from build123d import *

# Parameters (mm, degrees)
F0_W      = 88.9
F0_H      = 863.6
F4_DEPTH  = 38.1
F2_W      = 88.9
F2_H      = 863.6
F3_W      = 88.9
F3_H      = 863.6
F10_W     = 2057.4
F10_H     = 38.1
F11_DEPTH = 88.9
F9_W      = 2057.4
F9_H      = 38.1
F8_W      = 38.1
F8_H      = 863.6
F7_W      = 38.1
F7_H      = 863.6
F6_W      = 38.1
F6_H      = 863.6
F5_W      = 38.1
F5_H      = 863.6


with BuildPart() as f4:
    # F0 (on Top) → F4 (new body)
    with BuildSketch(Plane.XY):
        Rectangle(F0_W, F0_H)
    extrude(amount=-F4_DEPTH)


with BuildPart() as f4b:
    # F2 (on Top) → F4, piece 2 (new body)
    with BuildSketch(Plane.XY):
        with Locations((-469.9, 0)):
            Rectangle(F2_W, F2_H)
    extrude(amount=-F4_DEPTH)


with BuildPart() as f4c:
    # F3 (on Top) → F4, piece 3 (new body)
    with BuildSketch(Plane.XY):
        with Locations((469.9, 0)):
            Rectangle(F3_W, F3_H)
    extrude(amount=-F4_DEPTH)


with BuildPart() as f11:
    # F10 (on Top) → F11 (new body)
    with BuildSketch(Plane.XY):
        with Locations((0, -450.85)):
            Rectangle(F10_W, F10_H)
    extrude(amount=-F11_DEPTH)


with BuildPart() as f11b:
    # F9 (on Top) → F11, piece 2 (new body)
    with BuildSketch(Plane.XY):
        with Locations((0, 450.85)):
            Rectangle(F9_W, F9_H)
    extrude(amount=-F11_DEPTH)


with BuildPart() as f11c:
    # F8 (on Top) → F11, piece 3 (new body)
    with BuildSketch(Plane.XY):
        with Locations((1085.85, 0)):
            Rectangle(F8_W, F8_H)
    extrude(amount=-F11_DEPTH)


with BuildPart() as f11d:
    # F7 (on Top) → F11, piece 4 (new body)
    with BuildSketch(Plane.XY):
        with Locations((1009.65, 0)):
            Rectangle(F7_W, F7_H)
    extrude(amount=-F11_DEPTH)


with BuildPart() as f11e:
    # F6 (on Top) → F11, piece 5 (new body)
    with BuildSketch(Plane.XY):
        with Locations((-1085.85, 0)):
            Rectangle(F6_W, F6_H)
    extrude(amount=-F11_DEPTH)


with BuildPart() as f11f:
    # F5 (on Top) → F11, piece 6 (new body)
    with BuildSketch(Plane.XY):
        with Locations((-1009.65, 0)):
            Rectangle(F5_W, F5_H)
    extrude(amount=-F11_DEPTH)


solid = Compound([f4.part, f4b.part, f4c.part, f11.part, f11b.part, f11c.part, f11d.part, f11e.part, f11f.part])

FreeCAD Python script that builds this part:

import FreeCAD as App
import Part
import Sketcher

V = App.Vector
Q = App.Units.Quantity

doc = App.newDocument("Part")
body = doc.addObject("PartDesign::Body", "Body")

# Sketch on XY plane
sketch1 = doc.addObject("Sketcher::SketchObject", "Sketch")
body.addObject(sketch1)
sketch1.AttachmentSupport = (doc.XY_Plane, [""])
sketch1.MapMode = "FlatFace"
sketch1.addGeometry(Part.LineSegment(V(-44, 432, 0), V(-44, -432, 0)), False)
sketch1.addGeometry(Part.LineSegment(V(-44, -432, 0), V(44, -432, 0)), False)
sketch1.addGeometry(Part.LineSegment(V(44, -432, 0), V(44, 432, 0)), False)
sketch1.addGeometry(Part.LineSegment(V(44, 432, 0), V(-44, 432, 0)), False)
sketch1.addConstraint(Sketcher.Constraint("Coincident", 0, 2, 1, 1))
sketch1.addConstraint(Sketcher.Constraint("Coincident", 1, 2, 2, 1))
sketch1.addConstraint(Sketcher.Constraint("Coincident", 2, 2, 3, 1))
sketch1.addConstraint(Sketcher.Constraint("Coincident", 3, 2, 0, 1))
sketch1.addConstraint(Sketcher.Constraint("Vertical", 0))
sketch1.addConstraint(Sketcher.Constraint("Horizontal", 1))
sketch1.addConstraint(Sketcher.Constraint("Vertical", 2))
sketch1.addConstraint(Sketcher.Constraint("Horizontal", 3))
sketch1.addConstraint(Sketcher.Constraint("Symmetric", 0, 2, 2, 2, -1, 1))
sketch1.addConstraint(Sketcher.Constraint("DistanceY", 0, 2, 0, 1, Q("34 in")))
sketch1.addConstraint(Sketcher.Constraint("DistanceX", 1, 1, 1, 2, Q("3.5 in")))
pad1 = doc.addObject("PartDesign::Pad", "Pad")
body.addObject(pad1)
pad1.Profile = sketch1
pad1.Length = Q("1.5 in")
pad1.Reversed = True
body2 = doc.addObject("PartDesign::Body", "Body001")

# Sketch on XY plane
sketch2 = doc.addObject("Sketcher::SketchObject", "Sketch001")
body2.addObject(sketch2)
sketch2.AttachmentSupport = (doc.getObject("XY_Plane001"), [""])
sketch2.MapMode = "FlatFace"
sketch2.addGeometry(Part.LineSegment(V(-514, 432, 0), V(-514, -432, 0)), False)
sketch2.addGeometry(Part.LineSegment(V(-514, -432, 0), V(-425, -432, 0)), False)
sketch2.addGeometry(Part.LineSegment(V(-425, -432, 0), V(-425, 432, 0)), False)
sketch2.addGeometry(Part.LineSegment(V(-425, 432, 0), V(-514, 432, 0)), False)
sketch2.addConstraint(Sketcher.Constraint("Coincident", 0, 2, 1, 1))
sketch2.addConstraint(Sketcher.Constraint("Coincident", 1, 2, 2, 1))
sketch2.addConstraint(Sketcher.Constraint("Coincident", 2, 2, 3, 1))
sketch2.addConstraint(Sketcher.Constraint("Coincident", 3, 2, 0, 1))
sketch2.addConstraint(Sketcher.Constraint("Vertical", 0))
sketch2.addConstraint(Sketcher.Constraint("Horizontal", 1))
sketch2.addConstraint(Sketcher.Constraint("Vertical", 2))
sketch2.addConstraint(Sketcher.Constraint("Horizontal", 3))
sketch2.addConstraint(Sketcher.Constraint("DistanceY", 0, 2, 0, 1, Q("34 in")))
sketch2.addConstraint(Sketcher.Constraint("DistanceX", 1, 1, 1, 2, Q("3.5 in")))
sketch2.addConstraint(Sketcher.Constraint("DistanceY", 0, 2, -1, 1, Q("17 in")))
sketch2.addConstraint(Sketcher.Constraint("DistanceX", 0, 2, -1, 1, Q("20.25 in")))
pad2 = doc.addObject("PartDesign::Pad", "Pad001")
body2.addObject(pad2)
pad2.Profile = sketch2
pad2.Length = Q("1.5 in")
pad2.Reversed = True
body3 = doc.addObject("PartDesign::Body", "Body002")

# Sketch on XY plane
sketch3 = doc.addObject("Sketcher::SketchObject", "Sketch002")
body3.addObject(sketch3)
sketch3.AttachmentSupport = (doc.getObject("XY_Plane002"), [""])
sketch3.MapMode = "FlatFace"
sketch3.addGeometry(Part.LineSegment(V(425, 432, 0), V(425, -432, 0)), False)
sketch3.addGeometry(Part.LineSegment(V(425, -432, 0), V(514, -432, 0)), False)
sketch3.addGeometry(Part.LineSegment(V(514, -432, 0), V(514, 432, 0)), False)
sketch3.addGeometry(Part.LineSegment(V(514, 432, 0), V(425, 432, 0)), False)
sketch3.addConstraint(Sketcher.Constraint("Coincident", 0, 2, 1, 1))
sketch3.addConstraint(Sketcher.Constraint("Coincident", 1, 2, 2, 1))
sketch3.addConstraint(Sketcher.Constraint("Coincident", 2, 2, 3, 1))
sketch3.addConstraint(Sketcher.Constraint("Coincident", 3, 2, 0, 1))
sketch3.addConstraint(Sketcher.Constraint("Vertical", 0))
sketch3.addConstraint(Sketcher.Constraint("Horizontal", 1))
sketch3.addConstraint(Sketcher.Constraint("Vertical", 2))
sketch3.addConstraint(Sketcher.Constraint("Horizontal", 3))
sketch3.addConstraint(Sketcher.Constraint("DistanceY", 0, 2, 0, 1, Q("34 in")))
sketch3.addConstraint(Sketcher.Constraint("DistanceX", 1, 1, 1, 2, Q("3.5 in")))
sketch3.addConstraint(Sketcher.Constraint("DistanceY", 0, 2, -1, 1, Q("17 in")))
sketch3.addConstraint(Sketcher.Constraint("DistanceX", -1, 1, 0, 2, Q("16.75 in")))
pad3 = doc.addObject("PartDesign::Pad", "Pad002")
body3.addObject(pad3)
pad3.Profile = sketch3
pad3.Length = Q("1.5 in")
pad3.Reversed = True
body4 = doc.addObject("PartDesign::Body", "Body003")

# Sketch on XY plane
sketch4 = doc.addObject("Sketcher::SketchObject", "Sketch003")
body4.addObject(sketch4)
sketch4.AttachmentSupport = (doc.getObject("XY_Plane003"), [""])
sketch4.MapMode = "FlatFace"
sketch4.addGeometry(Part.LineSegment(V(-1029, -432, 0), V(-1029, -470, 0)), False)
sketch4.addGeometry(Part.LineSegment(V(-1029, -470, 0), V(1029, -470, 0)), False)
sketch4.addGeometry(Part.LineSegment(V(1029, -470, 0), V(1029, -432, 0)), False)
sketch4.addGeometry(Part.LineSegment(V(1029, -432, 0), V(-1029, -432, 0)), False)
sketch4.addConstraint(Sketcher.Constraint("Coincident", 0, 2, 1, 1))
sketch4.addConstraint(Sketcher.Constraint("Coincident", 1, 2, 2, 1))
sketch4.addConstraint(Sketcher.Constraint("Coincident", 2, 2, 3, 1))
sketch4.addConstraint(Sketcher.Constraint("Coincident", 3, 2, 0, 1))
sketch4.addConstraint(Sketcher.Constraint("Vertical", 0))
sketch4.addConstraint(Sketcher.Constraint("Horizontal", 1))
sketch4.addConstraint(Sketcher.Constraint("Vertical", 2))
sketch4.addConstraint(Sketcher.Constraint("Horizontal", 3))
sketch4.addConstraint(Sketcher.Constraint("DistanceX", 1, 1, 1, 2, Q("81 in")))
sketch4.addConstraint(Sketcher.Constraint("DistanceY", 0, 2, 0, 1, Q("1.5 in")))
sketch4.addConstraint(Sketcher.Constraint("DistanceY", 2, 2, -1, 1, Q("17 in")))
sketch4.addConstraint(Sketcher.Constraint("DistanceX", 0, 2, -1, 1, Q("40.5 in")))
pad4 = doc.addObject("PartDesign::Pad", "Pad003")
body4.addObject(pad4)
pad4.Profile = sketch4
pad4.Length = Q("3.5 in")
pad4.Reversed = True
body5 = doc.addObject("PartDesign::Body", "Body004")

# Sketch on XY plane
sketch5 = doc.addObject("Sketcher::SketchObject", "Sketch004")
body5.addObject(sketch5)
sketch5.AttachmentSupport = (doc.getObject("XY_Plane004"), [""])
sketch5.MapMode = "FlatFace"
sketch5.addGeometry(Part.LineSegment(V(-1029, 470, 0), V(-1029, 432, 0)), False)
sketch5.addGeometry(Part.LineSegment(V(-1029, 432, 0), V(1029, 432, 0)), False)
sketch5.addGeometry(Part.LineSegment(V(1029, 432, 0), V(1029, 470, 0)), False)
sketch5.addGeometry(Part.LineSegment(V(1029, 470, 0), V(-1029, 470, 0)), False)
sketch5.addConstraint(Sketcher.Constraint("Coincident", 0, 2, 1, 1))
sketch5.addConstraint(Sketcher.Constraint("Coincident", 1, 2, 2, 1))
sketch5.addConstraint(Sketcher.Constraint("Coincident", 2, 2, 3, 1))
sketch5.addConstraint(Sketcher.Constraint("Coincident", 3, 2, 0, 1))
sketch5.addConstraint(Sketcher.Constraint("Vertical", 0))
sketch5.addConstraint(Sketcher.Constraint("Horizontal", 1))
sketch5.addConstraint(Sketcher.Constraint("Vertical", 2))
sketch5.addConstraint(Sketcher.Constraint("Horizontal", 3))
sketch5.addConstraint(Sketcher.Constraint("DistanceX", 1, 1, 1, 2, Q("81 in")))
sketch5.addConstraint(Sketcher.Constraint("DistanceY", 0, 2, 0, 1, Q("1.5 in")))
sketch5.addConstraint(Sketcher.Constraint("DistanceY", -1, 1, 0, 2, Q("17 in")))
sketch5.addConstraint(Sketcher.Constraint("DistanceX", 0, 2, -1, 1, Q("40.5 in")))
pad5 = doc.addObject("PartDesign::Pad", "Pad004")
body5.addObject(pad5)
pad5.Profile = sketch5
pad5.Length = Q("3.5 in")
pad5.Reversed = True
body6 = doc.addObject("PartDesign::Body", "Body005")

# Sketch on XY plane
sketch6 = doc.addObject("Sketcher::SketchObject", "Sketch005")
body6.addObject(sketch6)
sketch6.AttachmentSupport = (doc.getObject("XY_Plane005"), [""])
sketch6.MapMode = "FlatFace"
sketch6.addGeometry(Part.LineSegment(V(1067, 432, 0), V(1067, -432, 0)), False)
sketch6.addGeometry(Part.LineSegment(V(1067, -432, 0), V(1105, -432, 0)), False)
sketch6.addGeometry(Part.LineSegment(V(1105, -432, 0), V(1105, 432, 0)), False)
sketch6.addGeometry(Part.LineSegment(V(1105, 432, 0), V(1067, 432, 0)), False)
sketch6.addConstraint(Sketcher.Constraint("Coincident", 0, 2, 1, 1))
sketch6.addConstraint(Sketcher.Constraint("Coincident", 1, 2, 2, 1))
sketch6.addConstraint(Sketcher.Constraint("Coincident", 2, 2, 3, 1))
sketch6.addConstraint(Sketcher.Constraint("Coincident", 3, 2, 0, 1))
sketch6.addConstraint(Sketcher.Constraint("Vertical", 0))
sketch6.addConstraint(Sketcher.Constraint("Horizontal", 1))
sketch6.addConstraint(Sketcher.Constraint("Vertical", 2))
sketch6.addConstraint(Sketcher.Constraint("Horizontal", 3))
sketch6.addConstraint(Sketcher.Constraint("DistanceY", 0, 2, 0, 1, Q("34 in")))
sketch6.addConstraint(Sketcher.Constraint("DistanceX", 1, 1, 1, 2, Q("1.5 in")))
sketch6.addConstraint(Sketcher.Constraint("DistanceX", -1, 1, 0, 2, Q("42 in")))
sketch6.addConstraint(Sketcher.Constraint("DistanceY", 0, 2, -1, 1, Q("17 in")))
pad6 = doc.addObject("PartDesign::Pad", "Pad005")
body6.addObject(pad6)
pad6.Profile = sketch6
pad6.Length = Q("3.5 in")
pad6.Reversed = True
body7 = doc.addObject("PartDesign::Body", "Body006")

# Sketch on XY plane
sketch7 = doc.addObject("Sketcher::SketchObject", "Sketch006")
body7.addObject(sketch7)
sketch7.AttachmentSupport = (doc.getObject("XY_Plane006"), [""])
sketch7.MapMode = "FlatFace"
sketch7.addGeometry(Part.LineSegment(V(991, 432, 0), V(991, -432, 0)), False)
sketch7.addGeometry(Part.LineSegment(V(991, -432, 0), V(1029, -432, 0)), False)
sketch7.addGeometry(Part.LineSegment(V(1029, -432, 0), V(1029, 432, 0)), False)
sketch7.addGeometry(Part.LineSegment(V(1029, 432, 0), V(991, 432, 0)), False)
sketch7.addConstraint(Sketcher.Constraint("Coincident", 0, 2, 1, 1))
sketch7.addConstraint(Sketcher.Constraint("Coincident", 1, 2, 2, 1))
sketch7.addConstraint(Sketcher.Constraint("Coincident", 2, 2, 3, 1))
sketch7.addConstraint(Sketcher.Constraint("Coincident", 3, 2, 0, 1))
sketch7.addConstraint(Sketcher.Constraint("Vertical", 0))
sketch7.addConstraint(Sketcher.Constraint("Horizontal", 1))
sketch7.addConstraint(Sketcher.Constraint("Vertical", 2))
sketch7.addConstraint(Sketcher.Constraint("Horizontal", 3))
sketch7.addConstraint(Sketcher.Constraint("DistanceY", 0, 2, 0, 1, Q("34 in")))
sketch7.addConstraint(Sketcher.Constraint("DistanceX", 1, 1, 1, 2, Q("1.5 in")))
sketch7.addConstraint(Sketcher.Constraint("DistanceX", -1, 1, 0, 2, Q("39 in")))
sketch7.addConstraint(Sketcher.Constraint("DistanceY", 0, 2, -1, 1, Q("17 in")))
pad7 = doc.addObject("PartDesign::Pad", "Pad006")
body7.addObject(pad7)
pad7.Profile = sketch7
pad7.Length = Q("3.5 in")
pad7.Reversed = True
body8 = doc.addObject("PartDesign::Body", "Body007")

# Sketch on XY plane
sketch8 = doc.addObject("Sketcher::SketchObject", "Sketch007")
body8.addObject(sketch8)
sketch8.AttachmentSupport = (doc.getObject("XY_Plane007"), [""])
sketch8.MapMode = "FlatFace"
sketch8.addGeometry(Part.LineSegment(V(-1105, 432, 0), V(-1105, -432, 0)), False)
sketch8.addGeometry(Part.LineSegment(V(-1105, -432, 0), V(-1067, -432, 0)), False)
sketch8.addGeometry(Part.LineSegment(V(-1067, -432, 0), V(-1067, 432, 0)), False)
sketch8.addGeometry(Part.LineSegment(V(-1067, 432, 0), V(-1105, 432, 0)), False)
sketch8.addConstraint(Sketcher.Constraint("Coincident", 0, 2, 1, 1))
sketch8.addConstraint(Sketcher.Constraint("Coincident", 1, 2, 2, 1))
sketch8.addConstraint(Sketcher.Constraint("Coincident", 2, 2, 3, 1))
sketch8.addConstraint(Sketcher.Constraint("Coincident", 3, 2, 0, 1))
sketch8.addConstraint(Sketcher.Constraint("Vertical", 0))
sketch8.addConstraint(Sketcher.Constraint("Horizontal", 1))
sketch8.addConstraint(Sketcher.Constraint("Vertical", 2))
sketch8.addConstraint(Sketcher.Constraint("Horizontal", 3))
sketch8.addConstraint(Sketcher.Constraint("DistanceY", 0, 2, 0, 1, Q("34 in")))
sketch8.addConstraint(Sketcher.Constraint("DistanceX", 1, 1, 1, 2, Q("1.5 in")))
sketch8.addConstraint(Sketcher.Constraint("DistanceY", 0, 2, -1, 1, Q("17 in")))
sketch8.addConstraint(Sketcher.Constraint("DistanceX", 1, 2, -1, 1, Q("42 in")))
pad8 = doc.addObject("PartDesign::Pad", "Pad007")
body8.addObject(pad8)
pad8.Profile = sketch8
pad8.Length = Q("3.5 in")
pad8.Reversed = True
body9 = doc.addObject("PartDesign::Body", "Body008")

# Sketch on XY plane
sketch9 = doc.addObject("Sketcher::SketchObject", "Sketch008")
body9.addObject(sketch9)
sketch9.AttachmentSupport = (doc.getObject("XY_Plane008"), [""])
sketch9.MapMode = "FlatFace"
sketch9.addGeometry(Part.LineSegment(V(-1029, 432, 0), V(-1029, -432, 0)), False)
sketch9.addGeometry(Part.LineSegment(V(-1029, -432, 0), V(-991, -432, 0)), False)
sketch9.addGeometry(Part.LineSegment(V(-991, -432, 0), V(-991, 432, 0)), False)
sketch9.addGeometry(Part.LineSegment(V(-991, 432, 0), V(-1029, 432, 0)), False)
sketch9.addConstraint(Sketcher.Constraint("Coincident", 0, 2, 1, 1))
sketch9.addConstraint(Sketcher.Constraint("Coincident", 1, 2, 2, 1))
sketch9.addConstraint(Sketcher.Constraint("Coincident", 2, 2, 3, 1))
sketch9.addConstraint(Sketcher.Constraint("Coincident", 3, 2, 0, 1))
sketch9.addConstraint(Sketcher.Constraint("Vertical", 0))
sketch9.addConstraint(Sketcher.Constraint("Horizontal", 1))
sketch9.addConstraint(Sketcher.Constraint("Vertical", 2))
sketch9.addConstraint(Sketcher.Constraint("Horizontal", 3))
sketch9.addConstraint(Sketcher.Constraint("DistanceY", 0, 2, 0, 1, Q("34 in")))
sketch9.addConstraint(Sketcher.Constraint("DistanceX", 1, 1, 1, 2, Q("1.5 in")))
sketch9.addConstraint(Sketcher.Constraint("DistanceY", 0, 2, -1, 1, Q("17 in")))
sketch9.addConstraint(Sketcher.Constraint("DistanceX", 1, 2, -1, 1, Q("39 in")))
pad9 = doc.addObject("PartDesign::Pad", "Pad008")
body9.addObject(pad9)
pad9.Profile = sketch9
pad9.Length = Q("3.5 in")
pad9.Reversed = True

doc.recompute()
